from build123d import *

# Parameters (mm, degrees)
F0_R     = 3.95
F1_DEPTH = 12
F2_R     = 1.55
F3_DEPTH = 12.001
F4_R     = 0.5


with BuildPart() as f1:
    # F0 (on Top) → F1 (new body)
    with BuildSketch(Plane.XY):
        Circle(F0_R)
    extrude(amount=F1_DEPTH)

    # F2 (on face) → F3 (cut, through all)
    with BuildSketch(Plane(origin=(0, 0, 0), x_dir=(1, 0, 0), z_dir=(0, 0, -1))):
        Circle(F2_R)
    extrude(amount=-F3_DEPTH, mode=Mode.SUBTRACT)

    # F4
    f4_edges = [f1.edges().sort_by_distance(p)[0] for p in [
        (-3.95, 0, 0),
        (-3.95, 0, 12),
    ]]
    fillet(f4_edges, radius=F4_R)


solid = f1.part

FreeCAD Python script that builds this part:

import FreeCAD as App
import Part
import Sketcher

V = App.Vector


def edges_at(feature, points):
    """Names of the edges that pass closest to the given points."""
    edges = feature.Shape.Edges
    near = lambda p: min(range(len(edges)), key=lambda i: edges[i].distToShape(Part.Vertex(*p))[0])
    return sorted({f"Edge{near(p) + 1}" for p in points})

doc = App.newDocument("Part")
params = doc.addObject("Spreadsheet::Sheet", "Params")
for row, (alias, value) in enumerate([
    ("sketch1_diameter", "7.9 mm"),
    ("pad1_length", "12 mm"),
    ("sketch2_diameter", "3.1 mm"),
    ("fillet_radius", "0.5 mm"),
], start=1):
    params.set(f"A{row}", alias)
    params.set(f"B{row}", "=" + value)
    params.setAlias(f"B{row}", alias)

body = doc.addObject("PartDesign::Body", "Body")

# Sketch on XY plane
sketch1 = body.newObject("Sketcher::SketchObject", "Sketch")
sketch1.AttachmentSupport = (doc.getObject("XY_Plane"), [""])
sketch1.MapMode = "FlatFace"
sketch1.addGeometry(Part.Circle(V(0, 0, 0), V(0, 0, 1), 4), False)
sketch1.addConstraint(Sketcher.Constraint("Coincident", 0, 3, -1, 1))
sketch1.addConstraint(Sketcher.Constraint("Diameter", 0, 7.9))
sketch1.setExpression("Constraints[1]", "Params.sketch1_diameter")
pad1 = body.newObject("PartDesign::Pad", "Pad")
pad1.Profile = sketch1
pad1.setExpression("Length", "Params.pad1_length")

# Sketch on XY plane
sketch2 = body.newObject("Sketcher::SketchObject", "Sketch001")
sketch2.AttachmentSupport = (doc.getObject("XY_Plane"), [""])
sketch2.MapMode = "FlatFace"
sketch2.addGeometry(Part.Circle(V(0, 0, 0), V(0, 0, 1), 1.6), False)
sketch2.addConstraint(Sketcher.Constraint("Coincident", 0, 3, -1, 1))
sketch2.addConstraint(Sketcher.Constraint("Diameter", 0, 3.1))
sketch2.setExpression("Constraints[1]", "Params.sketch2_diameter")
pocket1 = body.newObject("PartDesign::Pocket", "Pocket")
pocket1.Profile = sketch2
pocket1.Type = "ThroughAll"
pocket1.Reversed = True
doc.recompute()

fillet = body.newObject("PartDesign::Fillet", "Fillet")
fillet.Base = (pocket1, edges_at(pocket1, [(-3.95, 0, 0), (-3.95, 0, 12)]))
fillet.setExpression("Radius", "Params.fillet_radius")

doc.recompute()
